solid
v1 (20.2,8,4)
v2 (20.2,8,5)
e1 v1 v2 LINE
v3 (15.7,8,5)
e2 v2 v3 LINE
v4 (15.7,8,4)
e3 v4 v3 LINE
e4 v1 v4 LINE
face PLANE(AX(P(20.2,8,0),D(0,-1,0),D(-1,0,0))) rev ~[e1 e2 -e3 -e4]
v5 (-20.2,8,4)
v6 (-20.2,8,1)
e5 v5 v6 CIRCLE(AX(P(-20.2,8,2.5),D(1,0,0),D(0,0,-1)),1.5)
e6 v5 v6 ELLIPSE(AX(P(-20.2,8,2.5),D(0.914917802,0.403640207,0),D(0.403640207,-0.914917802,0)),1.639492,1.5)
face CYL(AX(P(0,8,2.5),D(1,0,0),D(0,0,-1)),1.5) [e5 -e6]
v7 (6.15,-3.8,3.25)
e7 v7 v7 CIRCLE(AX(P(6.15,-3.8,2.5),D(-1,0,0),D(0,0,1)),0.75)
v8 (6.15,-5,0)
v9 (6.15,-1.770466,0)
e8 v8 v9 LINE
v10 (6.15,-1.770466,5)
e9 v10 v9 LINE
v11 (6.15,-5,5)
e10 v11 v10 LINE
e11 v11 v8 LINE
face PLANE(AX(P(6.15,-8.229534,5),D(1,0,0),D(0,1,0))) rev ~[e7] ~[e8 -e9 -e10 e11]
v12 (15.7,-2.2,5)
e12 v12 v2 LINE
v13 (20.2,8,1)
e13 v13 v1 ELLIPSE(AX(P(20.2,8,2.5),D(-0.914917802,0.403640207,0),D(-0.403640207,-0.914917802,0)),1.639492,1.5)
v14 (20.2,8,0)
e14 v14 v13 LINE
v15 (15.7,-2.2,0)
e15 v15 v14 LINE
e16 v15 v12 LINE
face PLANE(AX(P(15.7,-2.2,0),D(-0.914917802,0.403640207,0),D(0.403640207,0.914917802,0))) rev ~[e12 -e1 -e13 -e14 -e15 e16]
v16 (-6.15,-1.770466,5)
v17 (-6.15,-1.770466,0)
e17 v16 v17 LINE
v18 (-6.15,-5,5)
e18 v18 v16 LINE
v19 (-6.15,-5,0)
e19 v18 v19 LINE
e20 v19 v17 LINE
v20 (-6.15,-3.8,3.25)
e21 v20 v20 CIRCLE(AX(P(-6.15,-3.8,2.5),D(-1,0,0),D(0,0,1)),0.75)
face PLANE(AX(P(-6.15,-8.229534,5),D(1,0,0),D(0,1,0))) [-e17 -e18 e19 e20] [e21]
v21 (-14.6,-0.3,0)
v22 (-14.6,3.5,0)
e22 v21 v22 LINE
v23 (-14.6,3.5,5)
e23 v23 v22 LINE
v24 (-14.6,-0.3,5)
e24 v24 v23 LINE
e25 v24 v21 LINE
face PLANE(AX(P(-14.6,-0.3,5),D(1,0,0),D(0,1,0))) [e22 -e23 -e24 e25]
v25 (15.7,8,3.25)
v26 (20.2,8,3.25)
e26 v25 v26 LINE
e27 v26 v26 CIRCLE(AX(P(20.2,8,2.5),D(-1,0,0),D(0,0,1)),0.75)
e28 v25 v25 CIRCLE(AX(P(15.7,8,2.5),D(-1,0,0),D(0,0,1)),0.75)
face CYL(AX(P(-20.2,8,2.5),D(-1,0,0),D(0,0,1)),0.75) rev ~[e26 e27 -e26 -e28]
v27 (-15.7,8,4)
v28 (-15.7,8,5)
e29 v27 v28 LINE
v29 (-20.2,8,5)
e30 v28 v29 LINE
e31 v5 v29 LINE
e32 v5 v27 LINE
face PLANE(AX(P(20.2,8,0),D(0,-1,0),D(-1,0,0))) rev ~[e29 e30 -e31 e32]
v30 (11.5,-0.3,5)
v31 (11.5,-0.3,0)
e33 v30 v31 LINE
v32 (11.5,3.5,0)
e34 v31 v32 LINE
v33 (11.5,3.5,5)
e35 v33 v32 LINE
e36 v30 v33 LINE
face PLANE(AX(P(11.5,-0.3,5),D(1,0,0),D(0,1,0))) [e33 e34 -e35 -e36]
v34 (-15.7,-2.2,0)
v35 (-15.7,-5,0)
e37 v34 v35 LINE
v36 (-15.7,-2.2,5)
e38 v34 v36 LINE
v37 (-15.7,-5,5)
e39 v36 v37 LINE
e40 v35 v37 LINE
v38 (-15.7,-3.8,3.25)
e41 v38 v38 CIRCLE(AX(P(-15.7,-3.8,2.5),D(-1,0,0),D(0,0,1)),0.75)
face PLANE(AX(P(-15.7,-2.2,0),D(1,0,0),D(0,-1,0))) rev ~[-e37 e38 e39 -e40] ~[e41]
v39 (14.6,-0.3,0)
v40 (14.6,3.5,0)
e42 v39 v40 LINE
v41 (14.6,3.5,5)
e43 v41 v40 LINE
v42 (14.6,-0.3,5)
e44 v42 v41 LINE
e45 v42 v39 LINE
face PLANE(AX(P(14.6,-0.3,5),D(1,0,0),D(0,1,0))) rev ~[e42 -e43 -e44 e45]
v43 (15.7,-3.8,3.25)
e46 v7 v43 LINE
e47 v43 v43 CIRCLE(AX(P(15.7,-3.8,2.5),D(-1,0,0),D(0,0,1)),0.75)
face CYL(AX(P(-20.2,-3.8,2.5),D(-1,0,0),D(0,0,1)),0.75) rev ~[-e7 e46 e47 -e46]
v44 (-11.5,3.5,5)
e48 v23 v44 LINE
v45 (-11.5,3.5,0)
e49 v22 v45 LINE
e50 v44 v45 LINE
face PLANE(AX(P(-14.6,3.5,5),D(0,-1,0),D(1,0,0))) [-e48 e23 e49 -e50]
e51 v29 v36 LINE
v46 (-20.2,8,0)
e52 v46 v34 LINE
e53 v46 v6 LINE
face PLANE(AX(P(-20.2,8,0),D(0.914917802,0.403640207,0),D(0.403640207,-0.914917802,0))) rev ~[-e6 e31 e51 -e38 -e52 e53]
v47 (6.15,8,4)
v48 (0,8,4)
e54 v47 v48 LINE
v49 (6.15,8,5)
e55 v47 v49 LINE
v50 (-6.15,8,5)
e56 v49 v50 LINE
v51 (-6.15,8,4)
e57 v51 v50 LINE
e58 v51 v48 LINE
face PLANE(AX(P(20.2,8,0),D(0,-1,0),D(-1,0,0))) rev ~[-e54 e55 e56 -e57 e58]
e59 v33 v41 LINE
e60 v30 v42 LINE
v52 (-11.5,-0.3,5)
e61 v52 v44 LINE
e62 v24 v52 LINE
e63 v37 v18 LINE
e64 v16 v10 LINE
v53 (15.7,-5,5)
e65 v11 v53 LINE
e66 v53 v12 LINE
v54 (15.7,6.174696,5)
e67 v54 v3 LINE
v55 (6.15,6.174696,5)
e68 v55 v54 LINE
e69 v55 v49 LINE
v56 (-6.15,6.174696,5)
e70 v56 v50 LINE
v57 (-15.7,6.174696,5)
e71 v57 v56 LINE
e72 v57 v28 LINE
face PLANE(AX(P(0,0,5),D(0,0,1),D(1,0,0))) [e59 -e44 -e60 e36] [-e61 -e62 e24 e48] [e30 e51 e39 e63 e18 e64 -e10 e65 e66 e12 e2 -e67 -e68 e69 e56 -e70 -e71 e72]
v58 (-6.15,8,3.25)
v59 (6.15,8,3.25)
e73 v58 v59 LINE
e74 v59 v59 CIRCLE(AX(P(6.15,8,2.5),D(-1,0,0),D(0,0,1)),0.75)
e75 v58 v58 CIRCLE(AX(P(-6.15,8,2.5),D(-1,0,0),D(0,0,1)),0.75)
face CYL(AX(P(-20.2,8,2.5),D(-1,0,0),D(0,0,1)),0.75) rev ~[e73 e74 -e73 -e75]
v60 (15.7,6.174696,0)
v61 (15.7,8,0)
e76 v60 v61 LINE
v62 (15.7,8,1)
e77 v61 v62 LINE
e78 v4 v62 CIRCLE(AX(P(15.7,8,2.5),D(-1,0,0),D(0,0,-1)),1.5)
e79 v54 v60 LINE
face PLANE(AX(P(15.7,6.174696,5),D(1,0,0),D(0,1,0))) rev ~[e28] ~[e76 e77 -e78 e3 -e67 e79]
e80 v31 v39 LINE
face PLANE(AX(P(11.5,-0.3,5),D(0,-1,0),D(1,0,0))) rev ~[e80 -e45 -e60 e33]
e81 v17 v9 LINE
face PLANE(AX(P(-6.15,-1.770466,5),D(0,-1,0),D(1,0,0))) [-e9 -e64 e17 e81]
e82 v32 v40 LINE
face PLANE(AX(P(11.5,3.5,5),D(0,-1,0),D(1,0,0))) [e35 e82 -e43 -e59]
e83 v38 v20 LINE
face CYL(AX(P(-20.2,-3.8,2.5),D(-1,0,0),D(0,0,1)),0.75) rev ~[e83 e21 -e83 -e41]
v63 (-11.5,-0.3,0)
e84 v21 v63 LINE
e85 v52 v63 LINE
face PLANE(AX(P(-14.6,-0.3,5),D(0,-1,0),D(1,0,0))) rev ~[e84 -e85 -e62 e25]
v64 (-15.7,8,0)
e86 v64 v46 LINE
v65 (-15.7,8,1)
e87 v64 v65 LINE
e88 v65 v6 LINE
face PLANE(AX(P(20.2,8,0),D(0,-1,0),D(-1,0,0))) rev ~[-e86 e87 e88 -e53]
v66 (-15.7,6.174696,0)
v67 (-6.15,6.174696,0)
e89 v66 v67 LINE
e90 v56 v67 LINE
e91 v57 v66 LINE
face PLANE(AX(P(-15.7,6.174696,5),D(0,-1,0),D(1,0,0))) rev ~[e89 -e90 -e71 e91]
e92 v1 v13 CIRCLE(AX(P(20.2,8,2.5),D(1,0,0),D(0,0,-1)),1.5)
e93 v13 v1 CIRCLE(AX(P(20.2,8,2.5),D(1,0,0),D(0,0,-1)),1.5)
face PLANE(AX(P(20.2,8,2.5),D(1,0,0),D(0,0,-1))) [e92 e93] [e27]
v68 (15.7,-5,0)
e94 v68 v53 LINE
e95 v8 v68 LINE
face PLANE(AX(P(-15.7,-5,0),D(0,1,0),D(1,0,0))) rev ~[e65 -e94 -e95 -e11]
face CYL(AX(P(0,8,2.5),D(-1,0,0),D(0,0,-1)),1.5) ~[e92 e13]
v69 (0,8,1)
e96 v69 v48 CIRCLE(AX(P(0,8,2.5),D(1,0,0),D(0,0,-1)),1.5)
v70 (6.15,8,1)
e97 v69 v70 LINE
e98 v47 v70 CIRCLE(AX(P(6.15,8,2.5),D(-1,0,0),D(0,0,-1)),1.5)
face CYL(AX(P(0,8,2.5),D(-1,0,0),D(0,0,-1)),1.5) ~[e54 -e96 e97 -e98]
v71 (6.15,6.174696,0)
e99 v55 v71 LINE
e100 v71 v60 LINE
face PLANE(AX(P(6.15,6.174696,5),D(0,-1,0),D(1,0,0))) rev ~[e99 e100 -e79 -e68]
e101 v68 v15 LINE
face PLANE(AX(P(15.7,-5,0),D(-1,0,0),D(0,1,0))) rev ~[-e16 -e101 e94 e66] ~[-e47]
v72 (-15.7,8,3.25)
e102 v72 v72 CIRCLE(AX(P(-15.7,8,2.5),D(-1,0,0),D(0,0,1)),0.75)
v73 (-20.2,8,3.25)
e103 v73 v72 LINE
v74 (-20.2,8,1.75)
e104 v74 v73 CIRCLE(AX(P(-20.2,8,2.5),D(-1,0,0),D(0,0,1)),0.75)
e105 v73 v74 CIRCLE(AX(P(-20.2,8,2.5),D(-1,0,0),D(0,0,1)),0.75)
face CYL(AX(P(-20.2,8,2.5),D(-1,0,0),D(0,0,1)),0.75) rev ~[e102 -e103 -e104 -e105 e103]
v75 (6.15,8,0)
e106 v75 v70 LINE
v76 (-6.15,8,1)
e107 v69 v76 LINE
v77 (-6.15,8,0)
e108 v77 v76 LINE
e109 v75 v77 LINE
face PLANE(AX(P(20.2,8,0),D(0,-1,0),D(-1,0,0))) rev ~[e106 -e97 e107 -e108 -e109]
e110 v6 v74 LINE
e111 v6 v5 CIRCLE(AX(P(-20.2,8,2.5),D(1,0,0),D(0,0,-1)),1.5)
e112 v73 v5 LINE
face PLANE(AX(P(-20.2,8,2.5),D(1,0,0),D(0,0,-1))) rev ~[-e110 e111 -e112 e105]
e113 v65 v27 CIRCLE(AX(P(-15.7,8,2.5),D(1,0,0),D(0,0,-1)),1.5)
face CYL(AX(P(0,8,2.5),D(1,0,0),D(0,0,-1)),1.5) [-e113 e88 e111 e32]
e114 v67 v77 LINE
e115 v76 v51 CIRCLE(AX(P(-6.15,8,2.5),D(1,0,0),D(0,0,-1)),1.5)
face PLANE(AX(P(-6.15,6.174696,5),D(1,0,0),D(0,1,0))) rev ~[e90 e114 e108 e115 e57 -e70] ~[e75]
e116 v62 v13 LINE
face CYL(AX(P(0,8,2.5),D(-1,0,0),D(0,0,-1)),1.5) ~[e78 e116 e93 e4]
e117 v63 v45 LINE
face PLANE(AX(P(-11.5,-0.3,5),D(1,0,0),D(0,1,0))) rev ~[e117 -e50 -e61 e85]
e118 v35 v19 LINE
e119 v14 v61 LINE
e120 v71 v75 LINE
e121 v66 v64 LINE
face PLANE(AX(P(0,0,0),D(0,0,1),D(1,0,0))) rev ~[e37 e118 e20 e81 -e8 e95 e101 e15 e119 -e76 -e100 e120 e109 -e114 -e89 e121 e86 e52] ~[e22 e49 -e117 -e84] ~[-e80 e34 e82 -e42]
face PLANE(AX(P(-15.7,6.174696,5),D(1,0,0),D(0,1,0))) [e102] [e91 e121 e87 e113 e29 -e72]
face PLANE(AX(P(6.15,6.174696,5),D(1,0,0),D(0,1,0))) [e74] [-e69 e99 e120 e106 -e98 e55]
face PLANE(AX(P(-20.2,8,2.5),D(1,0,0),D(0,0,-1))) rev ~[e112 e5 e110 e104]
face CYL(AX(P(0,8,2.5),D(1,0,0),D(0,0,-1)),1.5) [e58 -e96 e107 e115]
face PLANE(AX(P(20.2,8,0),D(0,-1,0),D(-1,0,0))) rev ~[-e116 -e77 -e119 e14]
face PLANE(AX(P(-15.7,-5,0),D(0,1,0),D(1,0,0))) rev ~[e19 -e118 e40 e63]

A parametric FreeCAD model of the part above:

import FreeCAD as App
import Part
import Sketcher

V = App.Vector
Q = App.Units.Quantity

doc = App.newDocument("Part")
body = doc.addObject("PartDesign::Body", "Body")

# Sketch on XY plane
sketch1 = doc.addObject("Sketcher::SketchObject", "Sketch")
body.addObject(sketch1)
sketch1.AttachmentSupport = (doc.XY_Plane, [""])
sketch1.MapMode = "FlatFace"
sketch1.addGeometry(Part.LineSegment(V(-15.7, -5, 0), V(15.7, -5, 0)), False)
sketch1.addGeometry(Part.LineSegment(V(15.7, -5, 0), V(15.7, -2.2, 0)), False)
sketch1.addGeometry(Part.LineSegment(V(15.7, -2.2, 0), V(20.2, 8, 0)), False)
sketch1.addGeometry(Part.LineSegment(V(20.2, 8, 0), V(-20.2, 8, 0)), False)
sketch1.addGeometry(Part.LineSegment(V(-20.2, 8, 0), V(-15.7, -2.2, 0)), False)
sketch1.addGeometry(Part.LineSegment(V(-15.7, -2.2, 0), V(-15.7, -5, 0)), False)
sketch1.addConstraint(Sketcher.Constraint("Coincident", 0, 2, 1, 1))
sketch1.addConstraint(Sketcher.Constraint("Coincident", 1, 2, 2, 1))
sketch1.addConstraint(Sketcher.Constraint("Coincident", 2, 2, 3, 1))
sketch1.addConstraint(Sketcher.Constraint("Coincident", 3, 2, 4, 1))
sketch1.addConstraint(Sketcher.Constraint("Coincident", 4, 2, 5, 1))
sketch1.addConstraint(Sketcher.Constraint("Coincident", 5, 2, 0, 1))
sketch1.addConstraint(Sketcher.Constraint("Horizontal", 0))
sketch1.addConstraint(Sketcher.Constraint("Vertical", 1))
sketch1.addConstraint(Sketcher.Constraint("Horizontal", 3))
sketch1.addConstraint(Sketcher.Constraint("Vertical", 5))
sketch1.addConstraint(Sketcher.Constraint("Symmetric", 1, 2, 4, 2, -2))
sketch1.addConstraint(Sketcher.Constraint("Equal", 2, 4))
sketch1.addConstraint(Sketcher.Constraint("DistanceX", 0, 1, 0, 2, Q("31.4 mm")))
sketch1.addConstraint(Sketcher.Constraint("DistanceX", 3, 2, 3, 1, Q("40.4 mm")))
sketch1.addConstraint(Sketcher.Constraint("DistanceY", 1, 1, 1, 2, Q("2.8 mm")))
sketch1.addConstraint(Sketcher.Constraint("DistanceY", 0, 2, -1, 1, Q("5 mm")))
sketch1.addConstraint(Sketcher.Constraint("DistanceY", -1, 1, 2, 2, Q("8 mm")))
pad1 = doc.addObject("PartDesign::Pad", "Pad")
body.addObject(pad1)
pad1.Profile = sketch1
pad1.Length = 5

# Sketch on XY plane
sketch2 = doc.addObject("Sketcher::SketchObject", "Sketch001")
body.addObject(sketch2)
sketch2.AttachmentSupport = (doc.XY_Plane, [""])
sketch2.MapMode = "FlatFace"
sketch2.AttachmentOffset = App.Placement(V(0, 0, 5), App.Rotation())
sketch2.addGeometry(Part.LineSegment(V(-14.6, 3.5, 0), V(-14.6, -0.3, 0)), False)
sketch2.addGeometry(Part.LineSegment(V(-14.6, -0.3, 0), V(-11.5, -0.3, 0)), False)
sketch2.addGeometry(Part.LineSegment(V(-11.5, -0.3, 0), V(-11.5, 3.5, 0)), False)
sketch2.addGeometry(Part.LineSegment(V(-11.5, 3.5, 0), V(-14.6, 3.5, 0)), False)
sketch2.addGeometry(Part.LineSegment(V(11.5, 3.5, 0), V(11.5, -0.3, 0)), False)
sketch2.addGeometry(Part.LineSegment(V(11.5, -0.3, 0), V(14.6, -0.3, 0)), False)
sketch2.addGeometry(Part.LineSegment(V(14.6, -0.3, 0), V(14.6, 3.5, 0)), False)
sketch2.addGeometry(Part.LineSegment(V(14.6, 3.5, 0), V(11.5, 3.5, 0)), False)
sketch2.addConstraint(Sketcher.Constraint("Coincident", 0, 2, 1, 1))
sketch2.addConstraint(Sketcher.Constraint("Coincident", 1, 2, 2, 1))
sketch2.addConstraint(Sketcher.Constraint("Coincident", 2, 2, 3, 1))
sketch2.addConstraint(Sketcher.Constraint("Coincident", 3, 2, 0, 1))
sketch2.addConstraint(Sketcher.Constraint("Coincident", 4, 2, 5, 1))
sketch2.addConstraint(Sketcher.Constraint("Coincident", 5, 2, 6, 1))
sketch2.addConstraint(Sketcher.Constraint("Coincident", 6, 2, 7, 1))
sketch2.addConstraint(Sketcher.Constraint("Coincident", 7, 2, 4, 1))
sketch2.addConstraint(Sketcher.Constraint("Vertical", 0))
sketch2.addConstraint(Sketcher.Constraint("Horizontal", 1))
sketch2.addConstraint(Sketcher.Constraint("Vertical", 2))
sketch2.addConstraint(Sketcher.Constraint("Horizontal", 3))
sketch2.addConstraint(Sketcher.Constraint("Vertical", 4))
sketch2.addConstraint(Sketcher.Constraint("Horizontal", 5))
sketch2.addConstraint(Sketcher.Constraint("Vertical", 6))
sketch2.addConstraint(Sketcher.Constraint("Horizontal", 7))
sketch2.addConstraint(Sketcher.Constraint("Symmetric", 1, 2, 4, 2, -2))
sketch2.addConstraint(Sketcher.Constraint("Symmetric", 3, 2, 6, 2, -2))
sketch2.addConstraint(Sketcher.Constraint("DistanceX", 1, 1, 1, 2, Q("3.1 mm")))
sketch2.addConstraint(Sketcher.Constraint("DistanceY", 0, 2, 0, 1, Q("3.8 mm")))
sketch2.addConstraint(Sketcher.Constraint("DistanceX", 1, 2, 4, 2, Q("23 mm")))
sketch2.addConstraint(Sketcher.Constraint("DistanceY", 0, 2, -1, 1, Q("0.3 mm")))
pocket1 = doc.addObject("PartDesign::Pocket", "Pocket")
body.addObject(pocket1)
pocket1.Profile = sketch2
pocket1.Type = "ThroughAll"

# Sketch on YZ plane
sketch3 = doc.addObject("Sketcher::SketchObject", "Sketch002")
body.addObject(sketch3)
sketch3.AttachmentSupport = (doc.YZ_Plane, [""])
sketch3.MapMode = "FlatFace"
sketch3.addGeometry(Part.Circle(V(8, 2.5, 0), V(0, 0, 1), 1.5), False)
sketch3.addConstraint(Sketcher.Constraint("Diameter", 0, Q("3 mm")))
sketch3.addConstraint(Sketcher.Constraint("DistanceX", -1, 1, 0, 3, Q("8 mm")))
sketch3.addConstraint(Sketcher.Constraint("DistanceY", -1, 1, 0, 3, Q("2.5 mm")))
pad2 = doc.addObject("PartDesign::Pad", "Pad001")
body.addObject(pad2)
pad2.Profile = sketch3
pad2.Type = "TwoLengths"
pad2.Length = 20.2
pad2.Length2 = 20.2

# Sketch on XY plane
sketch4 = doc.addObject("Sketcher::SketchObject", "Sketch003")
body.addObject(sketch4)
sketch4.AttachmentSupport = (doc.XY_Plane, [""])
sketch4.MapMode = "FlatFace"
sketch4.AttachmentOffset = App.Placement(V(0, 0, 5), App.Rotation())
sketch4.addGeometry(Part.LineSegment(V(-15.7, 9.825304, 0), V(-15.7, 6.174696, 0)), False)
sketch4.addGeometry(Part.LineSegment(V(-15.7, 6.174696, 0), V(-6.15, 6.174696, 0)), False)
sketch4.addGeometry(Part.LineSegment(V(-6.15, 6.174696, 0), V(-6.15, 9.825304, 0)), False)
sketch4.addGeometry(Part.LineSegment(V(-6.15, 9.825304, 0), V(-15.7, 9.825304, 0)), False)
sketch4.addGeometry(Part.LineSegment(V(6.15, 9.825304, 0), V(6.15, 6.174696, 0)), False)
sketch4.addGeometry(Part.LineSegment(V(6.15, 6.174696, 0), V(15.7, 6.174696, 0)), False)
sketch4.addGeometry(Part.LineSegment(V(15.7, 6.174696, 0), V(15.7, 9.825304, 0)), False)
sketch4.addGeometry(Part.LineSegment(V(15.7, 9.825304, 0), V(6.15, 9.825304, 0)), False)
sketch4.addGeometry(Part.LineSegment(V(-6.15, -1.770466, 0), V(-6.15, -8.229534, 0)), False)
sketch4.addGeometry(Part.LineSegment(V(-6.15, -8.229534, 0), V(6.15, -8.229534, 0)), False)
sketch4.addGeometry(Part.LineSegment(V(6.15, -8.229534, 0), V(6.15, -1.770466, 0)), False)
sketch4.addGeometry(Part.LineSegment(V(6.15, -1.770466, 0), V(-6.15, -1.770466, 0)), False)
sketch4.addConstraint(Sketcher.Constraint("Coincident", 0, 2, 1, 1))
sketch4.addConstraint(Sketcher.Constraint("Coincident", 1, 2, 2, 1))
sketch4.addConstraint(Sketcher.Constraint("Coincident", 2, 2, 3, 1))
sketch4.addConstraint(Sketcher.Constraint("Coincident", 3, 2, 0, 1))
sketch4.addConstraint(Sketcher.Constraint("Coincident", 4, 2, 5, 1))
sketch4.addConstraint(Sketcher.Constraint("Coincident", 5, 2, 6, 1))
sketch4.addConstraint(Sketcher.Constraint("Coincident", 6, 2, 7, 1))
sketch4.addConstraint(Sketcher.Constraint("Coincident", 7, 2, 4, 1))
sketch4.addConstraint(Sketcher.Constraint("Coincident", 8, 2, 9, 1))
sketch4.addConstraint(Sketcher.Constraint("Coincident", 9, 2, 10, 1))
sketch4.addConstraint(Sketcher.Constraint("Coincident", 10, 2, 11, 1))
sketch4.addConstraint(Sketcher.Constraint("Coincident", 11, 2, 8, 1))
sketch4.addConstraint(Sketcher.Constraint("Vertical", 0))
sketch4.addConstraint(Sketcher.Constraint("Horizontal", 1))
sketch4.addConstraint(Sketcher.Constraint("Vertical", 2))
sketch4.addConstraint(Sketcher.Constraint("Horizontal", 3))
sketch4.addConstraint(Sketcher.Constraint("Vertical", 4))
sketch4.addConstraint(Sketcher.Constraint("Horizontal", 5))
sketch4.addConstraint(Sketcher.Constraint("Vertical", 6))
sketch4.addConstraint(Sketcher.Constraint("Horizontal", 7))
sketch4.addConstraint(Sketcher.Constraint("Vertical", 8))
sketch4.addConstraint(Sketcher.Constraint("Horizontal", 9))
sketch4.addConstraint(Sketcher.Constraint("Vertical", 10))
sketch4.addConstraint(Sketcher.Constraint("Horizontal", 11))
sketch4.addConstraint(Sketcher.Constraint("Symmetric", 1, 2, 4, 2, -2))
sketch4.addConstraint(Sketcher.Constraint("Symmetric", 3, 2, 6, 2, -2))
sketch4.addConstraint(Sketcher.Constraint("Vertical", 2, 2, 8, 2))
sketch4.addConstraint(Sketcher.Constraint("Vertical", 7, 2, 9, 2))
sketch4.addConstraint(Sketcher.Constraint("DistanceX", 9, 1, 9, 2, Q("12.3 mm")))
sketch4.addConstraint(Sketcher.Constraint("DistanceX", 1, 1, 1, 2, Q("9.55 mm")))
sketch4.addConstraint(Sketcher.Constraint("DistanceY", 0, 2, 0, 1, Q("3.650609 mm")))
sketch4.addConstraint(Sketcher.Constraint("DistanceY", 8, 2, 8, 1, Q("6.459067 mm")))
sketch4.addConstraint(Sketcher.Constraint("DistanceY", 8, 2, 1, 2, Q("14.404229 mm")))
sketch4.addConstraint(Sketcher.Constraint("DistanceY", -1, 1, 0, 2, Q("6.174696 mm")))
pocket2 = doc.addObject("PartDesign::Pocket", "Pocket001")
body.addObject(pocket2)
pocket2.Profile = sketch4
pocket2.Length = 5

# Sketch on YZ plane
sketch5 = doc.addObject("Sketcher::SketchObject", "Sketch004")
body.addObject(sketch5)
sketch5.AttachmentSupport = (doc.YZ_Plane, [""])
sketch5.MapMode = "FlatFace"
sketch5.AttachmentOffset = App.Placement(V(0, 0, -20.2), App.Rotation())
sketch5.addGeometry(Part.Circle(V(8, 2.5, 0), V(0, 0, 1), 0.75), False)
sketch5.addGeometry(Part.Circle(V(-3.8, 2.5, 0), V(0, 0, 1), 0.75), False)
sketch5.addConstraint(Sketcher.Constraint("Equal", 0, 1))
sketch5.addConstraint(Sketcher.Constraint("Horizontal", 0, 3, 1, 3))
sketch5.addConstraint(Sketcher.Constraint("Diameter", 0, Q("1.5 mm")))
sketch5.addConstraint(Sketcher.Constraint("DistanceX", -1, 1, 0, 3, Q("8 mm")))
sketch5.addConstraint(Sketcher.Constraint("DistanceY", -1, 1, 0, 3, Q("2.5 mm")))
sketch5.addConstraint(Sketcher.Constraint("DistanceX", 1, 3, -1, 1, Q("3.8 mm")))
pocket3 = doc.addObject("PartDesign::Pocket", "Pocket002")
body.addObject(pocket3)
pocket3.Profile = sketch5
pocket3.Type = "ThroughAll"
pocket3.Reversed = True

doc.recompute()
